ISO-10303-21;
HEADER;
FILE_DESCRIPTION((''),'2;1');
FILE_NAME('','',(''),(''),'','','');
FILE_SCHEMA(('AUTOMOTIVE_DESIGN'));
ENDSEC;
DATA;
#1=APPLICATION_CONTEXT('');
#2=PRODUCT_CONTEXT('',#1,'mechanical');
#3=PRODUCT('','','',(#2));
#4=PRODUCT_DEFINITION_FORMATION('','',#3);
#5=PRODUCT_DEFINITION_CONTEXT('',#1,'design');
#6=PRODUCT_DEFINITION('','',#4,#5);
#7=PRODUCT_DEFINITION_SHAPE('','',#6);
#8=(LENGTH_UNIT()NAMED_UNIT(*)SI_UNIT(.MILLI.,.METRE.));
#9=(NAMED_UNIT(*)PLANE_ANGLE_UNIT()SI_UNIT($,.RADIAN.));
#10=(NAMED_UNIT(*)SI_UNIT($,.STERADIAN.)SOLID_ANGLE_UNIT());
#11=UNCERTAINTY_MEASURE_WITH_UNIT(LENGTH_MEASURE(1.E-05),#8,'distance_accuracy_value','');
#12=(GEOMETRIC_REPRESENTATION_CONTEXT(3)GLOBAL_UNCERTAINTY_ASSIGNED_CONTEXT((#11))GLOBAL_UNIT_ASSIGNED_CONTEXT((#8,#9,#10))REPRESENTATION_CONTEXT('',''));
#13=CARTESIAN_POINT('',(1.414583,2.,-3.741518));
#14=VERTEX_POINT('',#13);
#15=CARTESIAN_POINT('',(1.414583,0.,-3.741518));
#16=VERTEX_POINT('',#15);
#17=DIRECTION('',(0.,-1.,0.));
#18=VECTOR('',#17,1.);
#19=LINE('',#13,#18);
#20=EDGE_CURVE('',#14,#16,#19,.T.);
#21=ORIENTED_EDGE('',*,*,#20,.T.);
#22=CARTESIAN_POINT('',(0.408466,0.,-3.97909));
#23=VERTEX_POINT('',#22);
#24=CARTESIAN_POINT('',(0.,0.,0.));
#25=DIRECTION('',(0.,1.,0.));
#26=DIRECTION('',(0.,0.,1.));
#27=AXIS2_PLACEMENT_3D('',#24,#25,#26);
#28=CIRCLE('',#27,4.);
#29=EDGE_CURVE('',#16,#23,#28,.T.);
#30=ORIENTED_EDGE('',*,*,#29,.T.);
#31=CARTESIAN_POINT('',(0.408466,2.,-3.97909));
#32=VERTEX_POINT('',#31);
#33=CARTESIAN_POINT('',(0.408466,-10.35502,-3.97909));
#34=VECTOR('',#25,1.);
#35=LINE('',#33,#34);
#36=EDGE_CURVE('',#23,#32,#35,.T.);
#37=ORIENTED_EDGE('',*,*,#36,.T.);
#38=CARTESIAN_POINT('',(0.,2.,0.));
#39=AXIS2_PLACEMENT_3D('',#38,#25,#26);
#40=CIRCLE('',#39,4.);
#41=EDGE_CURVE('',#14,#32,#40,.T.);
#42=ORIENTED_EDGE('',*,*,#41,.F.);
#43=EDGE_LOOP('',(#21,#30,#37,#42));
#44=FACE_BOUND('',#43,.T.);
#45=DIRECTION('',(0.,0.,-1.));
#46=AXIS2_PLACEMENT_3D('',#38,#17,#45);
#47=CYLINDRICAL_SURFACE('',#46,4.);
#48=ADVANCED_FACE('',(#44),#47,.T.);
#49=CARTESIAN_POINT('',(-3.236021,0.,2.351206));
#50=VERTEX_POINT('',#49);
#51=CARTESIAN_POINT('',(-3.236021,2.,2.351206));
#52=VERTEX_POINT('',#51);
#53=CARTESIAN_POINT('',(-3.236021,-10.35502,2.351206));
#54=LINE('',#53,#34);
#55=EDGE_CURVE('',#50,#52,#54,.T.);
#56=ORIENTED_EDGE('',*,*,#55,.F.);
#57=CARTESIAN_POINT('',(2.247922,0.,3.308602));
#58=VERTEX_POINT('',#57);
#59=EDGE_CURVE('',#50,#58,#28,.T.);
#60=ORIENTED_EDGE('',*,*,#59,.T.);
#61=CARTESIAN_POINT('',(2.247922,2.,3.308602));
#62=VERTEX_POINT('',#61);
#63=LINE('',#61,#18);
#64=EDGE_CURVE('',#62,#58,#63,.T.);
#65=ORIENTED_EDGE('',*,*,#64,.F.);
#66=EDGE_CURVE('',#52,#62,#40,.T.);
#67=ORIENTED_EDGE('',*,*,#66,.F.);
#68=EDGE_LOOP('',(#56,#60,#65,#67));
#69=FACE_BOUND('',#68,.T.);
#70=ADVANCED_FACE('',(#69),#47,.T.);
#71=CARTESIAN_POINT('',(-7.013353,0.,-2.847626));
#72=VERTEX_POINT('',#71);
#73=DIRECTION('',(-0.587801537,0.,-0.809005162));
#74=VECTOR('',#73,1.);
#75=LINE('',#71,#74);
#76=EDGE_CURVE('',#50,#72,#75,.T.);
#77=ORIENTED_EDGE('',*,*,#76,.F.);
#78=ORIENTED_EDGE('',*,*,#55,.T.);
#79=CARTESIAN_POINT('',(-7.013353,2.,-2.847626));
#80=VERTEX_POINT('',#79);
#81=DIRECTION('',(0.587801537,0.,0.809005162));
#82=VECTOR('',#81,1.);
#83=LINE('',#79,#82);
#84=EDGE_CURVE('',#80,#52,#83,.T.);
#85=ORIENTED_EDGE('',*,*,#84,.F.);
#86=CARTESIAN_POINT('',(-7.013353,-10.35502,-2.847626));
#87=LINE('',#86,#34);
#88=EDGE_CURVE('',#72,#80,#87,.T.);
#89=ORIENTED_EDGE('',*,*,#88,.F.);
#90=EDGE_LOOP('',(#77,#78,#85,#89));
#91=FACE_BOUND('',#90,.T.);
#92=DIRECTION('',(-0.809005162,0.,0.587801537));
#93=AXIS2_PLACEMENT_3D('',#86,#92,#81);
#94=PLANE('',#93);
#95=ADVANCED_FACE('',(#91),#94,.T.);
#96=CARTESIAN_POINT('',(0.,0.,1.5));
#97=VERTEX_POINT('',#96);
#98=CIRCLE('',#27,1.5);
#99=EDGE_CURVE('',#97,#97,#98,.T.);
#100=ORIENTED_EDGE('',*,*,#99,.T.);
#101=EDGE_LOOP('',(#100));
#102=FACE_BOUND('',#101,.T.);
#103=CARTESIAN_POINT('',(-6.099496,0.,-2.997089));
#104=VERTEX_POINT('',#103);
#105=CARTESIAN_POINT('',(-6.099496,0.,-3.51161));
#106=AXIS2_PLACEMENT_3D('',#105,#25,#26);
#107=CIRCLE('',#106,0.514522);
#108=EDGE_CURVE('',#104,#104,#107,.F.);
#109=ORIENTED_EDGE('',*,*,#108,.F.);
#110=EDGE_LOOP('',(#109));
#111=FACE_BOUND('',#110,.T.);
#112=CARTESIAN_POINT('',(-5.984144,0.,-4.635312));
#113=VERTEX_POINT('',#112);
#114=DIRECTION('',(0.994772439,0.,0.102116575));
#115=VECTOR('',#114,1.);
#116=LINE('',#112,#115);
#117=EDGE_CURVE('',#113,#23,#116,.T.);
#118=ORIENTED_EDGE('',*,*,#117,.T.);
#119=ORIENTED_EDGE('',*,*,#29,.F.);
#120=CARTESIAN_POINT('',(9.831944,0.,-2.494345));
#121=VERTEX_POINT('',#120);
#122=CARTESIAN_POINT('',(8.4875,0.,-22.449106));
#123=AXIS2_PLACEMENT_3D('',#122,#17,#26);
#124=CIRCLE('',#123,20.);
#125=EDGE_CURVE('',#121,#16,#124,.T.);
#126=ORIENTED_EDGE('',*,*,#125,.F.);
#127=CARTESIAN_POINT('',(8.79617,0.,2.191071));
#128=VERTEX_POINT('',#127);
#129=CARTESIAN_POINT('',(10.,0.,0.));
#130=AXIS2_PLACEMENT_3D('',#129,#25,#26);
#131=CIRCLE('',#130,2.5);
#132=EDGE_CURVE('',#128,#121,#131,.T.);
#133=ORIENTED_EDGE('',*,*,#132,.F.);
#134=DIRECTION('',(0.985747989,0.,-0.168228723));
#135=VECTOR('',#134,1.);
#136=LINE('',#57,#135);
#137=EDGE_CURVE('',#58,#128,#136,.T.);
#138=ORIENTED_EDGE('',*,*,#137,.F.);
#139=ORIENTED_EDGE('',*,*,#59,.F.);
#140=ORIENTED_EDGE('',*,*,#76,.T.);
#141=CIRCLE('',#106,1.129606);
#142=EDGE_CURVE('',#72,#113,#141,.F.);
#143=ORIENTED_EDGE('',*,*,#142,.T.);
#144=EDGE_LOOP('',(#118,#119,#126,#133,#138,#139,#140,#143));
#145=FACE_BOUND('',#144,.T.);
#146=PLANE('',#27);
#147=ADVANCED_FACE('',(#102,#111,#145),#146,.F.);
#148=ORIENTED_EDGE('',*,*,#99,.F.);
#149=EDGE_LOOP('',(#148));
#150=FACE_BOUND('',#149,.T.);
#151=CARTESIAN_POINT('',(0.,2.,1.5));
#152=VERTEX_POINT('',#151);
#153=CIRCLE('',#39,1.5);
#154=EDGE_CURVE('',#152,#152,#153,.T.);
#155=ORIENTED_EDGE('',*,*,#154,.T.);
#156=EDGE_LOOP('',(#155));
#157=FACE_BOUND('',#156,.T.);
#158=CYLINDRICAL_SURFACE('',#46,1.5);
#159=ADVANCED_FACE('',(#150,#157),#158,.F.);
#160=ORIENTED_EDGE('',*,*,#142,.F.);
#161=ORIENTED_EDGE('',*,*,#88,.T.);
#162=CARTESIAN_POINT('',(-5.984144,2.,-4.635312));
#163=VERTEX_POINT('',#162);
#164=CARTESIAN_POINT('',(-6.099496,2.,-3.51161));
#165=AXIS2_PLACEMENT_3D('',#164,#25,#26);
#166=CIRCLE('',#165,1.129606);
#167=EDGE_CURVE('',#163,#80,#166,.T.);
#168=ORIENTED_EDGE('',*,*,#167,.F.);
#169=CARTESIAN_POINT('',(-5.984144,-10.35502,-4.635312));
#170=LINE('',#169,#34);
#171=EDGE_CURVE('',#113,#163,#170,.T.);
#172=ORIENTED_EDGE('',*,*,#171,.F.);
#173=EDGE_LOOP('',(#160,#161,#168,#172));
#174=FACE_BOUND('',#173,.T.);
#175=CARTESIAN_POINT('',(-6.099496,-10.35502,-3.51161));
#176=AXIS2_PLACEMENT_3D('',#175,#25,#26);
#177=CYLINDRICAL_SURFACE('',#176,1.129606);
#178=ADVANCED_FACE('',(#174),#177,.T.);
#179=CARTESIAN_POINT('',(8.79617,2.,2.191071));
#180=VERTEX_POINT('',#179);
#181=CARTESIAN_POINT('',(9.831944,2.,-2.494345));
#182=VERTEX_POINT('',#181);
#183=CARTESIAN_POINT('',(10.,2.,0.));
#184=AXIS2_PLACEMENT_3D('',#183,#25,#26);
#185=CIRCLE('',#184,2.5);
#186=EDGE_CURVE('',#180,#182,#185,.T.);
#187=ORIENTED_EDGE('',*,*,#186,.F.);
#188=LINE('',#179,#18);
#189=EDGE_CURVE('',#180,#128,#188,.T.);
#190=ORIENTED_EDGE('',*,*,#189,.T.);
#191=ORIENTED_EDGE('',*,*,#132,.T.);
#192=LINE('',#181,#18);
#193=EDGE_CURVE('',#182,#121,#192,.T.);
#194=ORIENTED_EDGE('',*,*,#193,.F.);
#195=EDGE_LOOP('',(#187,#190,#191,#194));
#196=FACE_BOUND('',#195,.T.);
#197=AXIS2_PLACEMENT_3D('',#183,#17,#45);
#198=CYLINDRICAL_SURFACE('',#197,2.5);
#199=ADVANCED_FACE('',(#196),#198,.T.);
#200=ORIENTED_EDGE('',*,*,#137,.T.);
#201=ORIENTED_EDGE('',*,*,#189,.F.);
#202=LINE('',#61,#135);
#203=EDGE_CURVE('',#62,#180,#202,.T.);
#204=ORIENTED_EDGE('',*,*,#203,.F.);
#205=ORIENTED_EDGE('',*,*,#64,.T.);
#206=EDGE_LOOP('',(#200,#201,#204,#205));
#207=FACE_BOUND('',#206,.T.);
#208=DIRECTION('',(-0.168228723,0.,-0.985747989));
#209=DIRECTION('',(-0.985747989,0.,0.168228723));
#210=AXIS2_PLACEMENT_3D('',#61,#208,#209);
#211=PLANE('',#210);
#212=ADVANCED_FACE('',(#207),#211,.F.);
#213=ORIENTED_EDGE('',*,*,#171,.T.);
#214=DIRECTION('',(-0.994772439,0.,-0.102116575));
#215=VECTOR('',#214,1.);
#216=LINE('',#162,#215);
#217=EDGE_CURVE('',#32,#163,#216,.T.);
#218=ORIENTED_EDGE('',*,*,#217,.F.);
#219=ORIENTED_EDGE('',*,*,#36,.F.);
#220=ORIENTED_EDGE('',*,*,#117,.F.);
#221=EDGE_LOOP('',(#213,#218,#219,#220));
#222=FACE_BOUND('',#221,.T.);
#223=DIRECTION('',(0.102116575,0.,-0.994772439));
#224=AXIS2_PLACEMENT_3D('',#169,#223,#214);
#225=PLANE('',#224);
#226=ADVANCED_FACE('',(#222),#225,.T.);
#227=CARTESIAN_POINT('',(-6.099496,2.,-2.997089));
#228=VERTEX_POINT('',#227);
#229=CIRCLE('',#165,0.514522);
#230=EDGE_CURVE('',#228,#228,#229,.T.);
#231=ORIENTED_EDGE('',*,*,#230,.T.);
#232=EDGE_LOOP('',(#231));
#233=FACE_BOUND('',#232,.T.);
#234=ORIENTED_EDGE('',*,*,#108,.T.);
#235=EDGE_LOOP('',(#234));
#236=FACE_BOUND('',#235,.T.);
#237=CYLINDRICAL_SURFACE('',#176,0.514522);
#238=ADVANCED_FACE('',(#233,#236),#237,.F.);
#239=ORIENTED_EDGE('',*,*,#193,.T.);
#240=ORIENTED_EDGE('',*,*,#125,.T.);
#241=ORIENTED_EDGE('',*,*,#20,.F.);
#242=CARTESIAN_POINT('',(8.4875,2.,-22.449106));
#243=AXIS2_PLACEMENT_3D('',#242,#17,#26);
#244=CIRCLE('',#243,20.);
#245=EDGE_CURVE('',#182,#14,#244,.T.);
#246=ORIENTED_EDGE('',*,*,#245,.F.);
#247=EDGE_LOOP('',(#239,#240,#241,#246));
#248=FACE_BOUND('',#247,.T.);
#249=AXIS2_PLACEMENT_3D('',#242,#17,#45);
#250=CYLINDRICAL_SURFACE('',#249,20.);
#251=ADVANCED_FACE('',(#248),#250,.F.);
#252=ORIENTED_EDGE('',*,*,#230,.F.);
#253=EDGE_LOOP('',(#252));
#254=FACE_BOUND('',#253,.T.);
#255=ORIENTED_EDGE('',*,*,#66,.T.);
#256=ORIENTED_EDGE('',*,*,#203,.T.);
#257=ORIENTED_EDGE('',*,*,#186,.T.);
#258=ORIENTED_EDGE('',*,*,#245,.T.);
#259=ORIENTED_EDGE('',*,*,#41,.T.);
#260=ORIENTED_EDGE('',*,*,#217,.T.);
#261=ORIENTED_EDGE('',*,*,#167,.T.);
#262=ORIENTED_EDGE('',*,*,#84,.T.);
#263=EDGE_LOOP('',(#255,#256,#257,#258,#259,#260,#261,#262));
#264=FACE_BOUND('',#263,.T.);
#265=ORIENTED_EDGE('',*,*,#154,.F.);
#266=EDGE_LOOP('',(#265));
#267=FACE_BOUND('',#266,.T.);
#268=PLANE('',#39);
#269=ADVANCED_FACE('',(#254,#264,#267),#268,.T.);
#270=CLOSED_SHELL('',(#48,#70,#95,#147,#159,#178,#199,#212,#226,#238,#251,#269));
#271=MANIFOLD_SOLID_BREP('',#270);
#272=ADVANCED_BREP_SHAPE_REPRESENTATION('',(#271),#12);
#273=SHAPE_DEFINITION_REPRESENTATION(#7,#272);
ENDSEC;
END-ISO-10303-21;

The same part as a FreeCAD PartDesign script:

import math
import FreeCAD as App
import Part
import Sketcher

doc = App.newDocument("Part")
body = doc.addObject("PartDesign::Body", "Body")

# Sketch on XZ plane
sketch1 = doc.addObject("Sketcher::SketchObject", "Sketch")
body.addObject(sketch1)
sketch1.AttachmentSupport = (doc.XZ_Plane, [""])
sketch1.MapMode = "FlatFace"
sketch1.addGeometry([
    Part.LineSegment(App.Vector(2.2, 3.3, 0), App.Vector(8.8, 2.2, 0)),  # 0
    Part.ArcOfCircle(Part.Circle(App.Vector(10, 0, 0), App.Vector(0, 0, 1), 2.5), math.radians(-94), math.radians(119)),  # 1
    Part.ArcOfCircle(Part.Circle(App.Vector(8.5, -22.4, 0), App.Vector(0, 0, 1), 20), math.radians(86), math.radians(111)),  # 2
    Part.ArcOfCircle(Part.Circle(App.Vector(0, 0, 0), App.Vector(0, 0, 1), 4), math.radians(56), math.radians(291)),  # 3
    Part.Circle(App.Vector(0, 0, 0), App.Vector(0, 0, 1), 1.5),  # 4
], False)
sketch1.addConstraint([
    Sketcher.Constraint("Coincident", 0, 2, 1, 2),
    Sketcher.Constraint("Tangent", 1, 1, 2, 1),
    Sketcher.Constraint("Tangent", 2, 2, 3, 2),
    Sketcher.Constraint("Coincident", 3, 1, 0, 1),
    Sketcher.Constraint("Coincident", 3, 3, -1, 1),
    Sketcher.Constraint("Coincident", 4, 3, -1, 1),
    Sketcher.Constraint("PointOnObject", 1, 3, -1),
    Sketcher.Constraint("Diameter", 4, 3.0),
    Sketcher.Constraint("Radius", 2, 20.0),
    Sketcher.Constraint("Radius", 3, 4.0),
    Sketcher.Constraint("Radius", 1, 2.5),
    Sketcher.Constraint("DistanceX", -1, 1, 1, 3, 10.0),
    Sketcher.Constraint("DistanceY", -1, 1, 3, 1, 3.308602),
    Sketcher.Constraint("DistanceX", -1, 1, 0, 2, 8.79617),
])
pad1 = doc.addObject("PartDesign::Pad", "Pad")
body.addObject(pad1)
pad1.Profile = sketch1
pad1.Length = 2
pad1.Reversed = True

# Sketch on XZ plane
sketch2 = doc.addObject("Sketcher::SketchObject", "Sketch001")
body.addObject(sketch2)
sketch2.AttachmentSupport = (doc.XZ_Plane, [""])
sketch2.MapMode = "FlatFace"
sketch2.addGeometry([
    Part.LineSegment(App.Vector(0.408466, -3.97909, 0), App.Vector(-5.984144, -4.635312, 0)),  # 0
    Part.ArcOfCircle(Part.Circle(App.Vector(-6.099496, -3.51161, 0), App.Vector(0, 0, 1), 1.129606), math.radians(143.998847), math.radians(275.861065)),  # 1
    Part.LineSegment(App.Vector(-7.013353, -2.847626, 0), App.Vector(-3.236021, 2.351206, 0)),  # 2
    Part.ArcOfCircle(Part.Circle(App.Vector(0, 0, 0), App.Vector(0, 0, 1), 4), math.radians(143.998847), math.radians(275.861065)),  # 3
    Part.Circle(App.Vector(-6.099496, -3.51161, 0), App.Vector(0, 0, 1), 0.514522),  # 4
], False)
sketch2.addConstraint([
    Sketcher.Constraint("Coincident", 0, 2, 1, 2),
    Sketcher.Constraint("Coincident", 1, 1, 2, 1),
    Sketcher.Constraint("Coincident", 2, 2, 3, 1),
    Sketcher.Constraint("Coincident", 3, 2, 0, 1),
    Sketcher.Constraint("Coincident", 3, 3, -1, 1),
    Sketcher.Constraint("Coincident", 4, 3, 1, 3),
    Sketcher.Constraint("Radius", 3, 4.0),
    Sketcher.Constraint("Diameter", 4, 1.029043),
    Sketcher.Constraint("Radius", 1, 1.129606),
    Sketcher.Constraint("DistanceY", 0, 2, 1, 3, 1.123701),
    Sketcher.Constraint("DistanceY", 1, 3, -1, 1, 3.51161),
    Sketcher.Constraint("DistanceX", 2, 2, -1, 1, 3.236021),
    Sketcher.Constraint("DistanceY", 3, 2, -1, 1, 3.97909),
    Sketcher.Constraint("DistanceX", 1, 1, 0, 2, 1.029209),
    Sketcher.Constraint("DistanceX", 0, 2, 3, 2, 6.39261),
])
pad2 = doc.addObject("PartDesign::Pad", "Pad001")
body.addObject(pad2)
pad2.Profile = sketch2
pad2.Length = 2
pad2.Reversed = True

doc.recompute()
